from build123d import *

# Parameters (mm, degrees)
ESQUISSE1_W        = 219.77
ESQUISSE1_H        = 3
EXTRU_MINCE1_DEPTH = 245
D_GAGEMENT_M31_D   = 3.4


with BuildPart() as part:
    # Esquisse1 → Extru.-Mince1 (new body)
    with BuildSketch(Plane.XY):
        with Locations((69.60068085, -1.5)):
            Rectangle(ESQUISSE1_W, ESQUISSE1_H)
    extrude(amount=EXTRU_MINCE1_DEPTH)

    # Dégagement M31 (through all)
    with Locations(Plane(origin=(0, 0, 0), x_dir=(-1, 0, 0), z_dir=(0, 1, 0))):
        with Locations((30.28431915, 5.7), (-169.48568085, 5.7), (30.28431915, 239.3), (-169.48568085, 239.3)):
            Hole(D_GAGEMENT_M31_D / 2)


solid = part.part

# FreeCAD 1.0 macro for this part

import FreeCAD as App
import Part
import Sketcher
Q = App.Units.Quantity


def add_polygon(sketch, points):
    """Adds a closed chain of lines whose ends are joined by coincident constraints."""
    first, n = sketch.GeometryCount, len(points)
    for a, b in zip(points, points[1:] + points[:1]):
        sketch.addGeometry(Part.LineSegment(App.Vector(*a, 0), App.Vector(*b, 0)), False)
    for i in range(n):
        sketch.addConstraint(Sketcher.Constraint("Coincident", first + i, 2, first + (i + 1) % n, 1))

doc = App.newDocument("Part")
body = doc.addObject("PartDesign::Body", "Body")

sketch1 = body.newObject("Sketcher::SketchObject", "Sketch")
sketch1.AttachmentSupport = (doc.getObject("XY_Plane"), [""])
sketch1.MapMode = "FlatFace"
add_polygon(sketch1, [(-40.284319, 0), (-40.284319, -3), (179.485681, -3), (179.485681, 0)])
sketch1.addConstraint(Sketcher.Constraint("Vertical", 0))
sketch1.addConstraint(Sketcher.Constraint("Horizontal", 1))
sketch1.addConstraint(Sketcher.Constraint("Vertical", 2))
sketch1.addConstraint(Sketcher.Constraint("Horizontal", 3))
sketch1.addConstraint(Sketcher.Constraint("PointOnObject", 2, 2, -1))
sketch1.addConstraint(Sketcher.Constraint("DistanceY", 0, 2, 0, 1, Q("3 mm")))
sketch1.addConstraint(Sketcher.Constraint("DistanceX", 1, 1, 1, 2, Q("219.77 mm")))
sketch1.addConstraint(Sketcher.Constraint("DistanceX", 0, 2, -1, 1, Q("40.284319 mm")))
pad1 = body.newObject("PartDesign::Pad", "Pad")
pad1.Profile = sketch1
pad1.Length = 245

sketch2 = body.newObject("Sketcher::SketchObject", "Sketch001")
sketch2.AttachmentSupport = (doc.getObject("XZ_Plane"), [""])
sketch2.MapMode = "FlatFace"
sketch2.addGeometry(Part.Circle(App.Vector(-30.284319, 5.7, 0), App.Vector(0, 0, 1), 1.7), False)
sketch2.addGeometry(Part.Circle(App.Vector(169.485681, 5.7, 0), App.Vector(0, 0, 1), 1.7), False)
sketch2.addGeometry(Part.Circle(App.Vector(-30.284319, 239.3, 0), App.Vector(0, 0, 1), 1.7), False)
sketch2.addGeometry(Part.Circle(App.Vector(169.485681, 239.3, 0), App.Vector(0, 0, 1), 1.7), False)
sketch2.addConstraint(Sketcher.Constraint("Equal", 0, 1))
sketch2.addConstraint(Sketcher.Constraint("Equal", 1, 2))
sketch2.addConstraint(Sketcher.Constraint("Equal", 2, 3))
sketch2.addConstraint(Sketcher.Constraint("Horizontal", 0, 3, 1, 3))
sketch2.addConstraint(Sketcher.Constraint("Horizontal", 2, 3, 3, 3))
sketch2.addConstraint(Sketcher.Constraint("Vertical", 0, 3, 2, 3))
sketch2.addConstraint(Sketcher.Constraint("Vertical", 1, 3, 3, 3))
sketch2.addConstraint(Sketcher.Constraint("Diameter", 0, Q("3.4 mm")))
sketch2.addConstraint(Sketcher.Constraint("DistanceY", -1, 1, 0, 3, Q("5.7 mm")))
sketch2.addConstraint(Sketcher.Constraint("DistanceY", -1, 1, 2, 3, Q("239.3 mm")))
sketch2.addConstraint(Sketcher.Constraint("DistanceX", 0, 3, 1, 3, Q("199.77 mm")))
sketch2.addConstraint(Sketcher.Constraint("DistanceX", 0, 3, -1, 1, Q("30.284319 mm")))
doc.recompute()
hole = body.newObject("PartDesign::Hole", "Hole")
hole.Profile = sketch2
hole.ThreadType = "None"
hole.Diameter = 3.4
hole.DepthType = "ThroughAll"
hole.Reversed = True

doc.recompute()
